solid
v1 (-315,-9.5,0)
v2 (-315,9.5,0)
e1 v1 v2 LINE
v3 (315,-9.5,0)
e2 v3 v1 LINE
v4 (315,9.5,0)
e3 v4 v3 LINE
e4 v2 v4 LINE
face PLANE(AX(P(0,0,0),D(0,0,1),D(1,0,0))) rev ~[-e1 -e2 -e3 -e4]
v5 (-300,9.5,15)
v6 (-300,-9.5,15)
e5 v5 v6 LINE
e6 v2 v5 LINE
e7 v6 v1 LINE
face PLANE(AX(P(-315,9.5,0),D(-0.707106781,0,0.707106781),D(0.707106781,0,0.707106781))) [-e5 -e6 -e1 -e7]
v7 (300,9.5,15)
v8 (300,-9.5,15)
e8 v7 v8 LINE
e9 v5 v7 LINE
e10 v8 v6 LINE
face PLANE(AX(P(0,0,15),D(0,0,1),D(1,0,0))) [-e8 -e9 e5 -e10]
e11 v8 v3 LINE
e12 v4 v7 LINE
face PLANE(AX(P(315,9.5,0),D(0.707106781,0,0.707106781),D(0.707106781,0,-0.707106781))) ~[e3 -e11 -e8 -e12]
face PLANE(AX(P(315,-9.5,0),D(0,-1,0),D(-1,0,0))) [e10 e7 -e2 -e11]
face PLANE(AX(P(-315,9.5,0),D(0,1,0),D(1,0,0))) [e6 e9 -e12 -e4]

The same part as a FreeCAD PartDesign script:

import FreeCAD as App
import Part
import Sketcher


def add_polygon(sketch, points):
    """Adds a closed chain of lines whose ends are joined by coincident constraints."""
    first, n = sketch.GeometryCount, len(points)
    for a, b in zip(points, points[1:] + points[:1]):
        sketch.addGeometry(Part.LineSegment(App.Vector(*a, 0), App.Vector(*b, 0)), False)
    for i in range(n):
        sketch.addConstraint(Sketcher.Constraint("Coincident", first + i, 2, first + (i + 1) % n, 1))

doc = App.newDocument("Part")
body = doc.addObject("PartDesign::Body", "Body")

# Sketch on XY plane
sketch1 = body.newObject("Sketcher::SketchObject", "Sketch")
sketch1.AttachmentSupport = (doc.getObject("XY_Plane"), [""])
sketch1.MapMode = "FlatFace"
add_polygon(sketch1, [(-315, -10), (315, -10), (315, 10), (-315, 10)])  # lines 0-3
sketch1.addConstraint(Sketcher.Constraint("Horizontal", 0))
sketch1.addConstraint(Sketcher.Constraint("Vertical", 1))
sketch1.addConstraint(Sketcher.Constraint("Horizontal", 2))
sketch1.addConstraint(Sketcher.Constraint("Vertical", 3))
sketch1.addConstraint(Sketcher.Constraint("Symmetric", 0, 2, 2, 2, -1, 1))
sketch1.addConstraint(Sketcher.Constraint("DistanceX", 0, 1, 0, 2, 630.0))
sketch1.addConstraint(Sketcher.Constraint("DistanceY", 1, 1, 1, 2, 19.0))
pad1 = body.newObject("PartDesign::Pad", "Pad")
pad1.Profile = sketch1
pad1.Length = 15

# Sketch on XZ plane
sketch2 = body.newObject("Sketcher::SketchObject", "Sketch001")
sketch2.AttachmentSupport = (doc.getObject("XZ_Plane"), [""])
sketch2.MapMode = "FlatFace"
sketch2.AttachmentOffset = App.Placement(App.Vector(0, 0, -9.5), App.Rotation())
add_polygon(sketch2, [(-300, 15), (-315, 0), (-315, 15)])  # lines 0-2
sketch2.addConstraint(Sketcher.Constraint("Vertical", 1))
sketch2.addConstraint(Sketcher.Constraint("Horizontal", 2))
sketch2.addConstraint(Sketcher.Constraint("PointOnObject", 0, 2, -1))
sketch2.addConstraint(Sketcher.Constraint("Equal", 2, 1))
sketch2.addConstraint(Sketcher.Constraint("DistanceX", 2, 1, 2, 2, 15.0))
sketch2.addConstraint(Sketcher.Constraint("DistanceX", 0, 2, -1, 1, 315.0))
pocket1 = body.newObject("PartDesign::Pocket", "Pocket")
pocket1.Profile = sketch2
pocket1.Type = "ThroughAll"
pocket1.Reversed = True
doc.recompute()

mirrored = body.newObject("PartDesign::Mirrored", "Mirrored")
mirrored.Originals = [pocket1]
mirrored.MirrorPlane = (doc.getObject("YZ_Plane"), [""])
body.Tip = mirrored

doc.recompute()
